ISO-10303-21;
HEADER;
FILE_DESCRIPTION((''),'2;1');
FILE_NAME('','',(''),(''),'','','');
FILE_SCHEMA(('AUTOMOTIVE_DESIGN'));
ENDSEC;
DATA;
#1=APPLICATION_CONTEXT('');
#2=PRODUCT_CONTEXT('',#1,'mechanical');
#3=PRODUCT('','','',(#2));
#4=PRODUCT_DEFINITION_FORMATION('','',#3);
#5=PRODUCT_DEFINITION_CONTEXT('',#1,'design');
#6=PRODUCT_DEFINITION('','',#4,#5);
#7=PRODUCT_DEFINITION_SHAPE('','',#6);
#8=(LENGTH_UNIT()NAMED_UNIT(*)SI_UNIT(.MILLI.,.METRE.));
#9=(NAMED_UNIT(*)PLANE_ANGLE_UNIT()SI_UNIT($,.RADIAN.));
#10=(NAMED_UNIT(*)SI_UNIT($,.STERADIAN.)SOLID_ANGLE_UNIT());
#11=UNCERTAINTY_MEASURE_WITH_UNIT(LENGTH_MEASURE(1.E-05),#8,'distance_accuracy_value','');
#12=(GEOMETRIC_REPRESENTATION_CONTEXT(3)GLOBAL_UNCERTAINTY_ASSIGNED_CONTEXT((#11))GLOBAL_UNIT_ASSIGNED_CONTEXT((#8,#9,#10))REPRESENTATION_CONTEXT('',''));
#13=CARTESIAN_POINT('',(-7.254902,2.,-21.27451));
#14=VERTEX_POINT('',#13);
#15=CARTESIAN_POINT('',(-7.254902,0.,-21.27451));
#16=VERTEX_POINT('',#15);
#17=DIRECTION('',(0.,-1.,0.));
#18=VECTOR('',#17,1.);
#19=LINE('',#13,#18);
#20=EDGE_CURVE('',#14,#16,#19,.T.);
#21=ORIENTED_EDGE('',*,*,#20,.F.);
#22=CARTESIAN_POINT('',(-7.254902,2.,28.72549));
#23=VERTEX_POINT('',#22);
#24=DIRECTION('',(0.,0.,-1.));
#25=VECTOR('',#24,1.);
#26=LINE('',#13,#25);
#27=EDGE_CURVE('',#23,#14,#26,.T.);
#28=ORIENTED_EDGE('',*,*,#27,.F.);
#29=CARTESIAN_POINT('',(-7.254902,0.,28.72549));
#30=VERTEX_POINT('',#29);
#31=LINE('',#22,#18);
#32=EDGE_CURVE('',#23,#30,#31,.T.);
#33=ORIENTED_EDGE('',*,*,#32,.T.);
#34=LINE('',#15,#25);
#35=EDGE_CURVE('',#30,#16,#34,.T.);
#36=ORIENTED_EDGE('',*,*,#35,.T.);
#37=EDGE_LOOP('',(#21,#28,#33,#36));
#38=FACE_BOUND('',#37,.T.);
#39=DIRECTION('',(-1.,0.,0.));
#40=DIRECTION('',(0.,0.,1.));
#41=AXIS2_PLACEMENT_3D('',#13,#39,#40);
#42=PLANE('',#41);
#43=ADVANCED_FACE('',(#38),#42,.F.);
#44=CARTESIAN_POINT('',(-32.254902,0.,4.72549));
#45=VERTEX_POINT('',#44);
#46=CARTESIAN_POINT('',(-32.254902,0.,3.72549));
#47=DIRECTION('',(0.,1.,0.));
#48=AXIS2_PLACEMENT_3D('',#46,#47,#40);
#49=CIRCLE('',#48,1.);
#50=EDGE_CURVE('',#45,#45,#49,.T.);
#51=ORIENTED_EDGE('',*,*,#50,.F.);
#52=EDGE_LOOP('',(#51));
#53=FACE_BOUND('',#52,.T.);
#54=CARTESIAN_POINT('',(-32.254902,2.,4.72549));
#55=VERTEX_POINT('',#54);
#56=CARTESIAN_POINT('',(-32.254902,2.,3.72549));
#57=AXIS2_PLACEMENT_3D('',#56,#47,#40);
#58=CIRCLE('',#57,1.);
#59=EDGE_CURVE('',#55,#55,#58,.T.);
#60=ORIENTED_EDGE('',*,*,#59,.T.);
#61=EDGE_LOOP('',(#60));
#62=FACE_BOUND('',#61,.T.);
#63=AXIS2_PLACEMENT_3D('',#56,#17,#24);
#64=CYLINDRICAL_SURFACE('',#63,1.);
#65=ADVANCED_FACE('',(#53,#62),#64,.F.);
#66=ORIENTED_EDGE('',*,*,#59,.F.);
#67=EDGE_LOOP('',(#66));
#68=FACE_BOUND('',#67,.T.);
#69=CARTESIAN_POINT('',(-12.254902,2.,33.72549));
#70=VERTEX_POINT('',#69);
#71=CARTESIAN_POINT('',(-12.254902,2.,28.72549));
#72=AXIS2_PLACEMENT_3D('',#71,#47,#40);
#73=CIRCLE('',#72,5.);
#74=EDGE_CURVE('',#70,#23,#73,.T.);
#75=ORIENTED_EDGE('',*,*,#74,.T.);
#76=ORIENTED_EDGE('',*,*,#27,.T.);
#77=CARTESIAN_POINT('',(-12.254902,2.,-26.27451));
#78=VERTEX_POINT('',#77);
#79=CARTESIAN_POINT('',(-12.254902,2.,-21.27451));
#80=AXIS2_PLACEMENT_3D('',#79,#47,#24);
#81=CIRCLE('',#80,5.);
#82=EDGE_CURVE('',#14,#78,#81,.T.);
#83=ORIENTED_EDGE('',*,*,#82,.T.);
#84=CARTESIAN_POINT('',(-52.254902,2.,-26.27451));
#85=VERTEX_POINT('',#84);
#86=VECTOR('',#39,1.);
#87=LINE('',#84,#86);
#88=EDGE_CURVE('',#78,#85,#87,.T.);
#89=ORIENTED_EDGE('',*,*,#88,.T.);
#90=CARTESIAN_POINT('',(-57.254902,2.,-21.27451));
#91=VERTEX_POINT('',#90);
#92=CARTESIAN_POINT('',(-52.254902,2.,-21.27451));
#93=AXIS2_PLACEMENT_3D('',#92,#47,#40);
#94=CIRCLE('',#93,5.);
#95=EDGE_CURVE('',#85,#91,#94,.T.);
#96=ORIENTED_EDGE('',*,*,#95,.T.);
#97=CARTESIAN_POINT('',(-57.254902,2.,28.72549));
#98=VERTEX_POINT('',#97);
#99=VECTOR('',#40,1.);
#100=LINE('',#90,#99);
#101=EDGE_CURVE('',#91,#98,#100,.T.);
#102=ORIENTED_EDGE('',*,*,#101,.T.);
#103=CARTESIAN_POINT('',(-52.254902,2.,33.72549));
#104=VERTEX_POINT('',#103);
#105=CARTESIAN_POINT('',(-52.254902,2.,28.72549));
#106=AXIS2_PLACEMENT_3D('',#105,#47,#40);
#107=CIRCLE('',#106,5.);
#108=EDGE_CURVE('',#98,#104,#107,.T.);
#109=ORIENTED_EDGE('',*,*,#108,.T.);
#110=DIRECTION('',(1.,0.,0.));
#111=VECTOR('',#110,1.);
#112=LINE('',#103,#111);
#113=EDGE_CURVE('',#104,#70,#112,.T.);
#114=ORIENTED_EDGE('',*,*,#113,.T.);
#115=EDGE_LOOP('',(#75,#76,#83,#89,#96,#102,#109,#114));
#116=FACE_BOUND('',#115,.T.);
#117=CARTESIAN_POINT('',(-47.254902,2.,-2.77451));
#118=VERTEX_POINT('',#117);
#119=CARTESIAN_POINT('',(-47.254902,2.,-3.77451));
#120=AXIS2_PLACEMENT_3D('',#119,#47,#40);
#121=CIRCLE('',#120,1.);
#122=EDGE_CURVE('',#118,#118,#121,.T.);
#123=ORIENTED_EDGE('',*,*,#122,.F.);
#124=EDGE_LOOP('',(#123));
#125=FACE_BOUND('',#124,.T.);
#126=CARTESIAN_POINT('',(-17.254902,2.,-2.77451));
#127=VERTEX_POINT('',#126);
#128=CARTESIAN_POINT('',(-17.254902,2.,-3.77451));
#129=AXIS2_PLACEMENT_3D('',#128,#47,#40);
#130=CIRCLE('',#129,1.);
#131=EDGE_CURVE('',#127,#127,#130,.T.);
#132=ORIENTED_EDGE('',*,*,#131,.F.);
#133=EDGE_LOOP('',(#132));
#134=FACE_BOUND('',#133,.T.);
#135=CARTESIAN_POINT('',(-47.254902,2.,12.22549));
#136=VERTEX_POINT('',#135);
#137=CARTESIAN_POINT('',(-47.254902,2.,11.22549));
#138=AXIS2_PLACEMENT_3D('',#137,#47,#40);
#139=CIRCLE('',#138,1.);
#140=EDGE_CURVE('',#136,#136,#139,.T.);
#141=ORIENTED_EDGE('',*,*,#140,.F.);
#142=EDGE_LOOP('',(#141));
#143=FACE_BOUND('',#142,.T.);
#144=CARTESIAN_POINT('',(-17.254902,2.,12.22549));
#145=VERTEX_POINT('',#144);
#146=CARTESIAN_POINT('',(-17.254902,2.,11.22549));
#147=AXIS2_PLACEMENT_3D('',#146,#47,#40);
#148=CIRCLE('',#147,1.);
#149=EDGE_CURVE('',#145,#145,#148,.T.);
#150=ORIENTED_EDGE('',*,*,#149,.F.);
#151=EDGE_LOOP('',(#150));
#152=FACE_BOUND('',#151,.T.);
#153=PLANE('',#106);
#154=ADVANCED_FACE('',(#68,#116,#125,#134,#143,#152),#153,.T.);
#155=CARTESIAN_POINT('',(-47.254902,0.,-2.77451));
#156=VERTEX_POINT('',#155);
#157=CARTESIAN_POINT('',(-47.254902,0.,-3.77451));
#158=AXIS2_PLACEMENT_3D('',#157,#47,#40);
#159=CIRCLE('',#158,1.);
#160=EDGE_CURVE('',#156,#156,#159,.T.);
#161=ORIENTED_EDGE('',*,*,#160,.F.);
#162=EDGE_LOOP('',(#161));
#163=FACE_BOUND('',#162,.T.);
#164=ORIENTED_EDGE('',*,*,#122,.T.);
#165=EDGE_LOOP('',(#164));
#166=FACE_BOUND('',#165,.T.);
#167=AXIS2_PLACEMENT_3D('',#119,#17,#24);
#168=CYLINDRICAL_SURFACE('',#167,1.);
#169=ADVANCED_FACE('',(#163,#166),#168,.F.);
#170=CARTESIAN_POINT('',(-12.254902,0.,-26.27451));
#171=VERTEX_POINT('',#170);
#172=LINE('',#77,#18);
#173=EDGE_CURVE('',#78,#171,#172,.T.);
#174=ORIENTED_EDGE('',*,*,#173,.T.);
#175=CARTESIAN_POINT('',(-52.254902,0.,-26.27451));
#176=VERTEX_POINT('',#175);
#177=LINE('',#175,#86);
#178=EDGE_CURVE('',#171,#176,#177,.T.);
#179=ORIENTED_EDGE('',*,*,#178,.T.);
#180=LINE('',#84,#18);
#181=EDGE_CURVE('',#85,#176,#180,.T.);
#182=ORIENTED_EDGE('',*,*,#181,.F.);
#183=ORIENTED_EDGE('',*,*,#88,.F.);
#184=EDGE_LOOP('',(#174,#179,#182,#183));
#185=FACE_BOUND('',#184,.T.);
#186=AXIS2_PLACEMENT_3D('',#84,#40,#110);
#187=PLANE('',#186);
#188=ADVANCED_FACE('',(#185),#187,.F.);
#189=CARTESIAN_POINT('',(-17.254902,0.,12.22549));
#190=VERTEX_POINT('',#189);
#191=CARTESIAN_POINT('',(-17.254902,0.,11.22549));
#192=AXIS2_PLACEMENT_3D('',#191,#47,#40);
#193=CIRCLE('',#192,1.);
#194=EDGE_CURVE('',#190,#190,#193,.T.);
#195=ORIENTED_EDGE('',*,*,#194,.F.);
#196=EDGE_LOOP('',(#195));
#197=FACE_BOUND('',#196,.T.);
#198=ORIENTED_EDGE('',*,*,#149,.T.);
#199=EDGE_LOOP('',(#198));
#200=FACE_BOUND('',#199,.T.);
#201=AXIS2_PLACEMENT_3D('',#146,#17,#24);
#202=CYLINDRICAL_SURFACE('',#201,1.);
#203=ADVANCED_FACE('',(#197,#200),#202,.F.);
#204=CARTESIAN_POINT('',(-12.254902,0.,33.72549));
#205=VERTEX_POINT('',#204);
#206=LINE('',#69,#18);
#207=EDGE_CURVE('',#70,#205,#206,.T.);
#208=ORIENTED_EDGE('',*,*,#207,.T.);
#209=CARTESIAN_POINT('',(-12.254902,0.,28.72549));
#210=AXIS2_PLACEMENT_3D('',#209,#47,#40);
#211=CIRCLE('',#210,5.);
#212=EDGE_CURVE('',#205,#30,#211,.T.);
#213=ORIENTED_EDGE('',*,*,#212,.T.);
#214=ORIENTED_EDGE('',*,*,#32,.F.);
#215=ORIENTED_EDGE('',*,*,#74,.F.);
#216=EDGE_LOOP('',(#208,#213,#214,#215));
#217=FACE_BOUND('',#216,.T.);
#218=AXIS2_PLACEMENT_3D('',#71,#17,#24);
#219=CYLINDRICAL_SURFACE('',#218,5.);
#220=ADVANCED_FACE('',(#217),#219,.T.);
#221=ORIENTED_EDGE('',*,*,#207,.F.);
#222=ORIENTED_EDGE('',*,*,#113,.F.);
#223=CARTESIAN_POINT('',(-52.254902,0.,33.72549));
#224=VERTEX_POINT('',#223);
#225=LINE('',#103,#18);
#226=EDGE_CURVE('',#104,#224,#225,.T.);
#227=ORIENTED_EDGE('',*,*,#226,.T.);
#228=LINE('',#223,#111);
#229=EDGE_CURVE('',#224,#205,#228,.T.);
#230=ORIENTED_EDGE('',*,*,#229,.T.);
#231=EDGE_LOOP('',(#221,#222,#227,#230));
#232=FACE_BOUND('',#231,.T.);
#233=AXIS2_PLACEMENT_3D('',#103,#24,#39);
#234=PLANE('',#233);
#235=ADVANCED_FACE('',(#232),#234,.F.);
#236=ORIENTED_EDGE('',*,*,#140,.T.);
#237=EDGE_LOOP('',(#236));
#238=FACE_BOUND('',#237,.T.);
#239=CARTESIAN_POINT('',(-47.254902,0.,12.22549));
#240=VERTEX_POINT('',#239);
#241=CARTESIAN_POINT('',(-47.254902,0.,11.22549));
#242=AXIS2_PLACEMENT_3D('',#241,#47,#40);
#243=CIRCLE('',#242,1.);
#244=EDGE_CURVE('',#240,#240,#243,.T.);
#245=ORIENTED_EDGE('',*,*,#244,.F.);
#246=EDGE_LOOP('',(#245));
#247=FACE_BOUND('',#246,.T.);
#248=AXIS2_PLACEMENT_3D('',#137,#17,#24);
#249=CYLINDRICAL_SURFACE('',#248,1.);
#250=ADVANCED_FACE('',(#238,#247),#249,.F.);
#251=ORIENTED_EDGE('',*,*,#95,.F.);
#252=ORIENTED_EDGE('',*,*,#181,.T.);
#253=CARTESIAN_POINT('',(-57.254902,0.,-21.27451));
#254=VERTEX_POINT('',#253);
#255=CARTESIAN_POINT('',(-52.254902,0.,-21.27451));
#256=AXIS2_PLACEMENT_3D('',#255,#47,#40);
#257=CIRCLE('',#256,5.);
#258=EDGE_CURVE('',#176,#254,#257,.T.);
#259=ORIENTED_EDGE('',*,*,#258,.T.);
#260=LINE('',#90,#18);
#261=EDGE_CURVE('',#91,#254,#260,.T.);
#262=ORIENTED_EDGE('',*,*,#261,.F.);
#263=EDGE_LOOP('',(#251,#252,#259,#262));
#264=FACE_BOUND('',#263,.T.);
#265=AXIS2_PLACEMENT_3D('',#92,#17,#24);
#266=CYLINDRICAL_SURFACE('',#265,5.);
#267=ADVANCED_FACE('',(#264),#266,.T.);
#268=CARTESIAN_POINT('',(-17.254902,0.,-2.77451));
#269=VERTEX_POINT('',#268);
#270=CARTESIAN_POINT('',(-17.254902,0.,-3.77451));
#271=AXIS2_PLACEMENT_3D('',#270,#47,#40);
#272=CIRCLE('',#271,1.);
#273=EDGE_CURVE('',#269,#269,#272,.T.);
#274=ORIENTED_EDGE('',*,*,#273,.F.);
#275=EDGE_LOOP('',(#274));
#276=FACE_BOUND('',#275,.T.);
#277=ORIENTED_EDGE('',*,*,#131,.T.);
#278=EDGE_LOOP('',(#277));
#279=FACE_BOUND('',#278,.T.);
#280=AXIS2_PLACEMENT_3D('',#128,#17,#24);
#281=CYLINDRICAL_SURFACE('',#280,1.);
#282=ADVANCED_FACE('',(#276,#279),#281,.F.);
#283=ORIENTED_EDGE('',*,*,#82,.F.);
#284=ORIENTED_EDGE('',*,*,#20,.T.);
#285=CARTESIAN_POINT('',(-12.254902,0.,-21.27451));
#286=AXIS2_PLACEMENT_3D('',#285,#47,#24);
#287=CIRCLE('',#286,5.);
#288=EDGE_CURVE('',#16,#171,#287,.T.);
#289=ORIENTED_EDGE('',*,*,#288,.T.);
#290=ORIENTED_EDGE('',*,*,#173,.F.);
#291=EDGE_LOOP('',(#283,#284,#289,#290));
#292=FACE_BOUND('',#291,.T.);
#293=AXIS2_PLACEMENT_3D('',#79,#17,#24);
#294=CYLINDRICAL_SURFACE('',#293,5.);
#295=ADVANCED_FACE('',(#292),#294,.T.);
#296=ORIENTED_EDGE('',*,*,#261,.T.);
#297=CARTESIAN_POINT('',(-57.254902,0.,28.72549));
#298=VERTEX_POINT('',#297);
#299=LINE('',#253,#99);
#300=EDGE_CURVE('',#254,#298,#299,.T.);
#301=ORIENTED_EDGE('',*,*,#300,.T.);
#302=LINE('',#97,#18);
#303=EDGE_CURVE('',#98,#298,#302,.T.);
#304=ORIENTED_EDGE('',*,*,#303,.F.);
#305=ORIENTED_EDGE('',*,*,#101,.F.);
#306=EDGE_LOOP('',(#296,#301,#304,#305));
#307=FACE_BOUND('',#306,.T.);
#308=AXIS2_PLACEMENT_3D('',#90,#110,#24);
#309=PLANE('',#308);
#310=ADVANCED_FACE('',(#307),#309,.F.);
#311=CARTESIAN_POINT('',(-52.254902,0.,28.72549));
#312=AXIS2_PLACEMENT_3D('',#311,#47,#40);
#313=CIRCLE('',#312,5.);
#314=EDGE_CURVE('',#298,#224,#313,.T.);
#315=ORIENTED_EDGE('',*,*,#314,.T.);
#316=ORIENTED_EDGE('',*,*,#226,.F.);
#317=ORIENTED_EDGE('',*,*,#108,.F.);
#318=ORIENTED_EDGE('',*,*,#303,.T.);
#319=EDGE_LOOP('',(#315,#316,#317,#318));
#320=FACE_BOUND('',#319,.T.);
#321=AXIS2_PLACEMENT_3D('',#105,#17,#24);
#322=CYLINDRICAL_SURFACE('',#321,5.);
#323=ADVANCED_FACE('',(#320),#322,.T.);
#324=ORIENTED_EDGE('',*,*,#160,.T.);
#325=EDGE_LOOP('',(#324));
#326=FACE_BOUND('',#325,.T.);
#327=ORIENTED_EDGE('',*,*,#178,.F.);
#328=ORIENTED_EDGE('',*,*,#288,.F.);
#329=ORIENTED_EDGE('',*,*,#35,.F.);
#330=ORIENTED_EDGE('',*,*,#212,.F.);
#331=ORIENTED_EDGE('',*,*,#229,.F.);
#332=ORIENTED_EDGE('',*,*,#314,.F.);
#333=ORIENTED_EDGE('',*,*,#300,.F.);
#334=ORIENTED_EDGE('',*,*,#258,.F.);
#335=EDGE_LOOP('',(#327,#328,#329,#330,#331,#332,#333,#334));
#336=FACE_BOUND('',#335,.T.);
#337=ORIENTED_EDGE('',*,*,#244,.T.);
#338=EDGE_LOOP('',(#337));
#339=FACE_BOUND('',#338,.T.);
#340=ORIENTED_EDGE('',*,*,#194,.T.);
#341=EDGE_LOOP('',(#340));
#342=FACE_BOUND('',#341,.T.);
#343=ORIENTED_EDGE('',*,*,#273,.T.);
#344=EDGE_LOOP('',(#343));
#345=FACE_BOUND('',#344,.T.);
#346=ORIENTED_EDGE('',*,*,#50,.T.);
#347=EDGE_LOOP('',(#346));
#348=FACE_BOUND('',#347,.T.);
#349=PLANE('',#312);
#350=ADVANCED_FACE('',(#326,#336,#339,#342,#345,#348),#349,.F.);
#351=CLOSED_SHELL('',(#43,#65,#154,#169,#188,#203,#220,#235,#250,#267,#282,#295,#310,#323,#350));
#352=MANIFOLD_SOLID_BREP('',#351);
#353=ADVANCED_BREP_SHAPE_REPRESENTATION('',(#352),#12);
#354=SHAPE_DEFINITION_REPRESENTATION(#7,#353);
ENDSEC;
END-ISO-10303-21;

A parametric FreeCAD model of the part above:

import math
import FreeCAD as App
import Part
import Sketcher
from FreeCAD import Vector
Q = App.Units.Quantity

doc = App.newDocument("Part")
body = doc.addObject("PartDesign::Body", "Body")

sketch1 = body.newObject("Sketcher::SketchObject", "Sketch")
sketch1.AttachmentSupport = (doc.getObject("XZ_Plane"), [""])
sketch1.MapMode = "FlatFace"
sketch1.addGeometry([
    Part.LineSegment(Vector(-12.3, -26.3, 0), Vector(-52.3, -26.3, 0)),
    Part.ArcOfCircle(Part.Circle(Vector(-52.3, -21.3, 0), Vector(0, 0, 1), 5), math.radians(180), math.radians(270)),
    Part.LineSegment(Vector(-57.3, -21.3, 0), Vector(-57.3, 28.7, 0)),
    Part.ArcOfCircle(Part.Circle(Vector(-52.3, 28.7, 0), Vector(0, 0, 1), 5), math.radians(90), math.radians(180)),
    Part.LineSegment(Vector(-52.3, 33.7, 0), Vector(-12.3, 33.7, 0)),
    Part.ArcOfCircle(Part.Circle(Vector(-12.3, 28.7, 0), Vector(0, 0, 1), 5), math.radians(0), math.radians(90)),
    Part.LineSegment(Vector(-7.3, 28.7, 0), Vector(-7.3, -21.3, 0)),
    Part.ArcOfCircle(Part.Circle(Vector(-12.3, -21.3, 0), Vector(0, 0, 1), 5), math.radians(-90), math.radians(0)),
    Part.Circle(Vector(-17.3, 11.2, 0), Vector(0, 0, 1), 1),
    Part.Circle(Vector(-47.3, 11.2, 0), Vector(0, 0, 1), 1),
    Part.Circle(Vector(-17.3, -3.8, 0), Vector(0, 0, 1), 1),
    Part.Circle(Vector(-32.3, 3.7, 0), Vector(0, 0, 1), 1),
    Part.Circle(Vector(-47.3, -3.8, 0), Vector(0, 0, 1), 1),
], False)
sketch1.addConstraint([
    Sketcher.Constraint("Tangent", 0, 2, 1, 2),
    Sketcher.Constraint("Tangent", 1, 1, 2, 1),
    Sketcher.Constraint("Tangent", 2, 2, 3, 2),
    Sketcher.Constraint("Tangent", 3, 1, 4, 1),
    Sketcher.Constraint("Tangent", 4, 2, 5, 2),
    Sketcher.Constraint("Tangent", 5, 1, 6, 1),
    Sketcher.Constraint("Tangent", 6, 2, 7, 2),
    Sketcher.Constraint("Tangent", 7, 1, 0, 1),
    Sketcher.Constraint("Horizontal", 0),
    Sketcher.Constraint("Vertical", 2),
    Sketcher.Constraint("Horizontal", 4),
    Sketcher.Constraint("Vertical", 6),
    Sketcher.Constraint("Equal", 1, 3),
    Sketcher.Constraint("Equal", 3, 5),
    Sketcher.Constraint("Equal", 5, 7),
    Sketcher.Constraint("Equal", 8, 9),
    Sketcher.Constraint("Equal", 9, 10),
    Sketcher.Constraint("Equal", 10, 11),
    Sketcher.Constraint("Equal", 11, 12),
    Sketcher.Constraint("Horizontal", 8, 3, 9, 3),
    Sketcher.Constraint("Horizontal", 10, 3, 12, 3),
    Sketcher.Constraint("Vertical", 8, 3, 10, 3),
    Sketcher.Constraint("Vertical", 9, 3, 12, 3),
    Sketcher.Constraint("Diameter", 8, Q("2 mm")),
    Sketcher.Constraint("Radius", 1, Q("5 mm")),
    Sketcher.Constraint("DistanceX", 0, 2, 0, 1, Q("40 mm")),
    Sketcher.Constraint("DistanceY", 2, 1, 2, 2, Q("50 mm")),
    Sketcher.Constraint("DistanceX", 8, 3, 5, 3, Q("5 mm")),
    Sketcher.Constraint("DistanceX", 3, 3, 9, 3, Q("5 mm")),
    Sketcher.Constraint("DistanceY", 10, 3, 8, 3, Q("15 mm")),
    Sketcher.Constraint("DistanceX", 11, 3, 8, 3, Q("15 mm")),
    Sketcher.Constraint("DistanceY", 1, 3, 11, 3, Q("25 mm")),
    Sketcher.Constraint("DistanceY", 8, 3, 5, 3, Q("17.5 mm")),
    Sketcher.Constraint("DistanceX", 1, 3, -1, 1, Q("52.254902 mm")),
    Sketcher.Constraint("DistanceY", 1, 3, -1, 1, Q("21.27451 mm")),
])
pad1 = body.newObject("PartDesign::Pad", "Pad")
pad1.Profile = sketch1
pad1.Length = 2
pad1.Reversed = True

doc.recompute()
